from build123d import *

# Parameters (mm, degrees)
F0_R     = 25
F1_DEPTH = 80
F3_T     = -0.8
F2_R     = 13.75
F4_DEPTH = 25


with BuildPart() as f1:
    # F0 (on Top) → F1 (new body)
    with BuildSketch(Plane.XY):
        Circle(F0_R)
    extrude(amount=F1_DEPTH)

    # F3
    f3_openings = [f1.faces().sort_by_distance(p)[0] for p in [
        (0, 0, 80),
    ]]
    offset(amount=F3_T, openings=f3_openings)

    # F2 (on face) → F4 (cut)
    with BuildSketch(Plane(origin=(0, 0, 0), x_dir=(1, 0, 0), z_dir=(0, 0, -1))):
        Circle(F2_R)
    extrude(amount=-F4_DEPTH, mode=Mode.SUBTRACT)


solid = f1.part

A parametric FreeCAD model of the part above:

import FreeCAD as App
import Part
import Sketcher
from FreeCAD import Vector
Q = App.Units.Quantity


def faces_at(feature, points):
    """Names of the faces that lie closest to the given points."""
    faces = feature.Shape.Faces
    near = lambda p: min(range(len(faces)), key=lambda i: faces[i].distToShape(Part.Vertex(*p))[0])
    return sorted({f"Face{near(p) + 1}" for p in points})

doc = App.newDocument("Part")
body = doc.addObject("PartDesign::Body", "Body")

# Sketch on XY plane
sketch1 = body.newObject("Sketcher::SketchObject", "Sketch")
sketch1.AttachmentSupport = (doc.getObject("XY_Plane"), [""])
sketch1.MapMode = "FlatFace"
sketch1.addGeometry(Part.Circle(Vector(0, 0, 0), Vector(0, 0, 1), 25), False)
sketch1.addConstraint(Sketcher.Constraint("Coincident", 0, 3, -1, 1))
sketch1.addConstraint(Sketcher.Constraint("Diameter", 0, Q("50 mm")))
pad1 = body.newObject("PartDesign::Pad", "Pad")
pad1.Profile = sketch1
pad1.Length = 80
doc.recompute()

thickness = body.newObject("PartDesign::Thickness", "Thickness")
thickness.Base = (pad1, faces_at(pad1, [(0, 0, 80)]))
thickness.Value = 0.8
thickness.Reversed = True
thickness.Join = "Arc"

# Sketch on XY plane
sketch2 = body.newObject("Sketcher::SketchObject", "Sketch001")
sketch2.AttachmentSupport = (doc.getObject("XY_Plane"), [""])
sketch2.MapMode = "FlatFace"
sketch2.addGeometry(Part.Circle(Vector(0, 0, 0), Vector(0, 0, 1), 14), False)
sketch2.addConstraint(Sketcher.Constraint("Coincident", 0, 3, -1, 1))
sketch2.addConstraint(Sketcher.Constraint("Diameter", 0, Q("27.5 mm")))
pocket1 = body.newObject("PartDesign::Pocket", "Pocket")
pocket1.Profile = sketch2
pocket1.Length = 25
pocket1.Reversed = True

doc.recompute()
